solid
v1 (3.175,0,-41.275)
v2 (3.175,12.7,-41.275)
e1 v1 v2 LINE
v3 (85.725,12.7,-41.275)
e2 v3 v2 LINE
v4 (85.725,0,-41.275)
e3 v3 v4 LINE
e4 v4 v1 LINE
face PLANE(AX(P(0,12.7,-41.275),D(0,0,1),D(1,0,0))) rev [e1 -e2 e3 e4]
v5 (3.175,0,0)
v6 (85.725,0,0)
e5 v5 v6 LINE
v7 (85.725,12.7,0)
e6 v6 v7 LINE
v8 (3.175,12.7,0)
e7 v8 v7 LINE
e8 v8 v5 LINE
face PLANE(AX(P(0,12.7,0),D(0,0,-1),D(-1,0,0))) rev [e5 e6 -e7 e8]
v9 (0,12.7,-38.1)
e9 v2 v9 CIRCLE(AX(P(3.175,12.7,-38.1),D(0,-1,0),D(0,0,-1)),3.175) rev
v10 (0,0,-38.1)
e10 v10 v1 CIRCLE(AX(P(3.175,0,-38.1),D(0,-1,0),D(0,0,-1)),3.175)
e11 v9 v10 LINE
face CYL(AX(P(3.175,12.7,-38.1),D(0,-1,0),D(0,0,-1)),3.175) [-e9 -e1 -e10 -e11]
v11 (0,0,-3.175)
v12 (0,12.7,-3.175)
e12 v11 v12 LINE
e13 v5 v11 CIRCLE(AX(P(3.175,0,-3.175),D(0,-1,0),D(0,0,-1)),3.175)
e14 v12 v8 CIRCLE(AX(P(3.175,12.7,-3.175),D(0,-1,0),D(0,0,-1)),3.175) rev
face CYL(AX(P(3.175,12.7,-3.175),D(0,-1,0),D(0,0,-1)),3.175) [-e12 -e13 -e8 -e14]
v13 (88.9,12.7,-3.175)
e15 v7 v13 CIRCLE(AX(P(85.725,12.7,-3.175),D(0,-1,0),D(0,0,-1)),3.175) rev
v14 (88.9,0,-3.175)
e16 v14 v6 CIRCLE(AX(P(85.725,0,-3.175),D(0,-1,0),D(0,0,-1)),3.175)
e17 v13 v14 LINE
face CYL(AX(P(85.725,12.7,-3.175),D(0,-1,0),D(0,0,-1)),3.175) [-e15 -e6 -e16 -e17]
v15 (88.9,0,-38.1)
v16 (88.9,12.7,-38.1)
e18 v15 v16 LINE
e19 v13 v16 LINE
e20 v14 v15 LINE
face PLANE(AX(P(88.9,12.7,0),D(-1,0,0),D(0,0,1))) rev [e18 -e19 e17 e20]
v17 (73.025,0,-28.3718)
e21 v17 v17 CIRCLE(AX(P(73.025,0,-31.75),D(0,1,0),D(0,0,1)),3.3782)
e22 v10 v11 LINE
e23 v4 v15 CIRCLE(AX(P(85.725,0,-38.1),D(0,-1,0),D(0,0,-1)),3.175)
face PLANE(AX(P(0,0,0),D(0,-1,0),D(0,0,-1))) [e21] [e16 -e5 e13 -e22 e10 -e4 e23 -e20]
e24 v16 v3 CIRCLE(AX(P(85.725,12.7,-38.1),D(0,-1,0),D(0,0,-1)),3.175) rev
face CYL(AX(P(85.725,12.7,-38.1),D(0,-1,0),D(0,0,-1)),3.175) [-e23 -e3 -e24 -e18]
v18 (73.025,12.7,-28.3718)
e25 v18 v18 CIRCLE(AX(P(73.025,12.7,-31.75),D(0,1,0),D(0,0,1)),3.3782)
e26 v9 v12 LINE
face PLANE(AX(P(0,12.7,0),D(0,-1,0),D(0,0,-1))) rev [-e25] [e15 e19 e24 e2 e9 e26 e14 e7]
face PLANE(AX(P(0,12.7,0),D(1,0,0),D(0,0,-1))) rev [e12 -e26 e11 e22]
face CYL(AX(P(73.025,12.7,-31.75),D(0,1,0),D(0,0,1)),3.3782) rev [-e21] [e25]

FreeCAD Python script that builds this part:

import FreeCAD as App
import Part
import Sketcher
Q = App.Units.Quantity


def edges_at(feature, points):
    """Names of the edges that pass closest to the given points."""
    edges = feature.Shape.Edges
    near = lambda p: min(range(len(edges)), key=lambda i: edges[i].distToShape(Part.Vertex(*p))[0])
    return sorted({f"Edge{near(p) + 1}" for p in points})

doc = App.newDocument("Part")
params = doc.addObject("Spreadsheet::Sheet", "Params")
for row, (alias, value) in enumerate([
    ("sketch1_width", "3.5 in"),
    ("sketch1_height", "1.625 in"),
    ("pad1_length", "0.5 in"),
    ("sketch2_diameter", "0.266 in"),
    ("hole_diameter", "0.266 in"),
    ("fillet_radius", "0.125 in"),
], start=1):
    params.set(f"A{row}", alias)
    params.set(f"B{row}", "=" + value)
    params.setAlias(f"B{row}", alias)

body = doc.addObject("PartDesign::Body", "Body")

sketch1 = body.newObject("Sketcher::SketchObject", "Sketch")
sketch1.AttachmentSupport = (doc.getObject("XZ_Plane"), [""])
sketch1.MapMode = "FlatFace"
sketch1.addGeometry(Part.LineSegment(App.Vector(0, -41, 0), App.Vector(0, 0, 0)), False)
sketch1.addGeometry(Part.LineSegment(App.Vector(0, 0, 0), App.Vector(89, 0, 0)), False)
sketch1.addGeometry(Part.LineSegment(App.Vector(89, 0, 0), App.Vector(89, -41, 0)), False)
sketch1.addGeometry(Part.LineSegment(App.Vector(89, -41, 0), App.Vector(0, -41, 0)), False)
sketch1.addConstraint(Sketcher.Constraint("Coincident", 0, 2, 1, 1))
sketch1.addConstraint(Sketcher.Constraint("Coincident", 1, 2, 2, 1))
sketch1.addConstraint(Sketcher.Constraint("Coincident", 2, 2, 3, 1))
sketch1.addConstraint(Sketcher.Constraint("Coincident", 3, 2, 0, 1))
sketch1.addConstraint(Sketcher.Constraint("Vertical", 0))
sketch1.addConstraint(Sketcher.Constraint("Horizontal", 1))
sketch1.addConstraint(Sketcher.Constraint("Vertical", 2))
sketch1.addConstraint(Sketcher.Constraint("Horizontal", 3))
sketch1.addConstraint(Sketcher.Constraint("Coincident", 0, 2, -1, 1))
sketch1.addConstraint(Sketcher.Constraint("DistanceX", 1, 1, 1, 2, Q("3.5 in")))
sketch1.addConstraint(Sketcher.Constraint("DistanceY", 0, 1, 0, 2, Q("1.625 in")))
sketch1.setExpression("Constraints[9]", "Params.sketch1_width")
sketch1.setExpression("Constraints[10]", "Params.sketch1_height")
pad1 = body.newObject("PartDesign::Pad", "Pad")
pad1.Profile = sketch1
pad1.setExpression("Length", "Params.pad1_length")
pad1.Reversed = True

sketch2 = body.newObject("Sketcher::SketchObject", "Sketch001")
sketch2.AttachmentSupport = (doc.getObject("XZ_Plane"), [""])
sketch2.MapMode = "FlatFace"
sketch2.AttachmentOffset = App.Placement(App.Vector(0, 0, -0.5 * 25.4), App.Rotation())
sketch2.addGeometry(Part.Circle(App.Vector(73, -31.8, 0), App.Vector(0, 0, 1), 3.4), False)
sketch2.addConstraint(Sketcher.Constraint("Diameter", 0, Q("0.266 in")))
sketch2.addConstraint(Sketcher.Constraint("DistanceY", 0, 3, -1, 1, Q("1.25 in")))
sketch2.addConstraint(Sketcher.Constraint("DistanceX", -1, 1, 0, 3, Q("2.875 in")))
sketch2.setExpression("Constraints[0]", "Params.sketch2_diameter")
doc.recompute()
hole = body.newObject("PartDesign::Hole", "Hole")
hole.Profile = sketch2
hole.ThreadType = "None"
hole.setExpression("Diameter", "Params.hole_diameter")
hole.DepthType = "ThroughAll"
hole.Reversed = True
doc.recompute()

fillet = body.newObject("PartDesign::Fillet", "Fillet")
fillet.Base = (hole, edges_at(hole, [
    (0, 6.35, -41.275),
    (88.9, 6.35, -41.275),
    (88.9, 6.35, 0),
    (0, 6.35, 0),
]))
fillet.setExpression("Radius", "Params.fillet_radius")

doc.recompute()
